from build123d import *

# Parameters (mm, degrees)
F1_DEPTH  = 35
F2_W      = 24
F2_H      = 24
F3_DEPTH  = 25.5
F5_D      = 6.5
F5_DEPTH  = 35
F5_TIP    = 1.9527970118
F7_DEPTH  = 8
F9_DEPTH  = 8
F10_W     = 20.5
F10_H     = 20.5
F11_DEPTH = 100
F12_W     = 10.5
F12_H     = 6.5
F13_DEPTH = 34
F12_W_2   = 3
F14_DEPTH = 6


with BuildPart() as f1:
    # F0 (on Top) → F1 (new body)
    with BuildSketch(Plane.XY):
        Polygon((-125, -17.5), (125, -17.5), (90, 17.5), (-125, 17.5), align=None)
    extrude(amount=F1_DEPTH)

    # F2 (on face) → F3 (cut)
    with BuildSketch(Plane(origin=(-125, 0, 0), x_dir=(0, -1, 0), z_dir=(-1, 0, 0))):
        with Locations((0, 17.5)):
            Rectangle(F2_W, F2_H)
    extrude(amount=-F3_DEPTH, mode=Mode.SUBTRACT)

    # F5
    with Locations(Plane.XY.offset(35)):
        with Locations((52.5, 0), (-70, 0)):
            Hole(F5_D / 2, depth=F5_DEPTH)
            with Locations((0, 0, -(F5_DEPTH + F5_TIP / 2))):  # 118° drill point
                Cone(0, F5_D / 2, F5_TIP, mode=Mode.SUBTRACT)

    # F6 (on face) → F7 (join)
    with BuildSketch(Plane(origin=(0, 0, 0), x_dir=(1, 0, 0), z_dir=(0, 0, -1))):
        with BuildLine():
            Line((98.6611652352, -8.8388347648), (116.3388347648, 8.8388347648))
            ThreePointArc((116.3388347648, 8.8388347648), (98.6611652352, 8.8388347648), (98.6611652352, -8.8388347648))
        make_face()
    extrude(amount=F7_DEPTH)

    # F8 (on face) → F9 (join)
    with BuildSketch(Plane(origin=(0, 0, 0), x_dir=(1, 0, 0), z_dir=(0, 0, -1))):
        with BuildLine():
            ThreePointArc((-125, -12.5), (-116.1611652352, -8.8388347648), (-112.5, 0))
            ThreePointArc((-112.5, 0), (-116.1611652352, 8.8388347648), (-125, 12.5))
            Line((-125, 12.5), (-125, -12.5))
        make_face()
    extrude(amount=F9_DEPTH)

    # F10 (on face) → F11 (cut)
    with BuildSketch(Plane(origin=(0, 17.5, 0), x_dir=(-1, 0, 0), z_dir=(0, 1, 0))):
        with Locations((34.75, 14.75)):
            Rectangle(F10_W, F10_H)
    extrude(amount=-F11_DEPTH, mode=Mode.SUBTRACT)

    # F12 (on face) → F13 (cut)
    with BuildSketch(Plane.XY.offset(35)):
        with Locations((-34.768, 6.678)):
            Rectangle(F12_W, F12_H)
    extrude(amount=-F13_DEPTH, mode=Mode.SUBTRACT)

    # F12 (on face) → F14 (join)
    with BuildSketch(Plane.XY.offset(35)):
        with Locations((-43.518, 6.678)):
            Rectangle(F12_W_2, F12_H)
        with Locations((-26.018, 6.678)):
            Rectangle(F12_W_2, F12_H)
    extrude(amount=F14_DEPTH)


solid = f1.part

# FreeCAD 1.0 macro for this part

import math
import FreeCAD as App
import Part
import Sketcher
from FreeCAD import Vector
Q = App.Units.Quantity


def add_polygon(sketch, points):
    """Adds a closed chain of lines whose ends are joined by coincident constraints."""
    first, n = sketch.GeometryCount, len(points)
    for a, b in zip(points, points[1:] + points[:1]):
        sketch.addGeometry(Part.LineSegment(App.Vector(*a, 0), App.Vector(*b, 0)), False)
    for i in range(n):
        sketch.addConstraint(Sketcher.Constraint("Coincident", first + i, 2, first + (i + 1) % n, 1))

doc = App.newDocument("Part")
params = doc.addObject("Spreadsheet::Sheet", "Params")
for row, (alias, value) in enumerate([
    ("sketch1_width", "250 mm"),
    ("sketch1_width2", "215 mm"),
    ("sketch1_height", "35 mm"),
    ("pad1_length", "35 mm"),
    ("sketch2_width", "24 mm"),
    ("pocket1_length", "25.5 mm"),
    ("sketch3_diameter", "6.5 mm"),
    ("hole_diameter", "6.5 mm"),
    ("hole_depth", "35 mm"),
    ("sketch4_radius", "12.5 mm"),
    ("pad2_length", "8 mm"),
    ("sketch5_radius", "12.5 mm"),
    ("pad3_length", "8 mm"),
    ("sketch6_width", "20.5 mm"),
    ("pocket2_length", "100 mm"),
    ("sketch7_width", "10.5 mm"),
    ("sketch7_height", "6.5 mm"),
    ("pocket3_length", "34 mm"),
    ("sketch8_width", "3 mm"),
    ("sketch8_height", "6.5 mm"),
    ("pad4_length", "6 mm"),
], start=1):
    params.set(f"A{row}", alias)
    params.set(f"B{row}", "=" + value)
    params.setAlias(f"B{row}", alias)

body = doc.addObject("PartDesign::Body", "Body")

# Sketch on XY plane
sketch1 = body.newObject("Sketcher::SketchObject", "Sketch")
sketch1.AttachmentSupport = (doc.getObject("XY_Plane"), [""])
sketch1.MapMode = "FlatFace"
add_polygon(sketch1, [(-125, -18), (125, -18), (90, 18), (-125, 18)])  # lines 0-3
sketch1.addConstraint([
    Sketcher.Constraint("Horizontal", 0),
    Sketcher.Constraint("Horizontal", 2),
    Sketcher.Constraint("Vertical", 3),
    Sketcher.Constraint("Symmetric", 0, 2, 2, 2, -1, 1),
    Sketcher.Constraint("DistanceX", 0, 1, 0, 2, 250.0),
    Sketcher.Constraint("DistanceX", 2, 2, 2, 1, 215.0),
    Sketcher.Constraint("DistanceY", 3, 2, 3, 1, 35.0),
])
sketch1.setExpression("Constraints[8]", "Params.sketch1_width")
sketch1.setExpression("Constraints[9]", "Params.sketch1_width2")
sketch1.setExpression("Constraints[10]", "Params.sketch1_height")
pad1 = body.newObject("PartDesign::Pad", "Pad")
pad1.Profile = sketch1
pad1.setExpression("Length", "Params.pad1_length")

# Sketch on YZ plane
sketch2 = body.newObject("Sketcher::SketchObject", "Sketch001")
sketch2.AttachmentSupport = (doc.getObject("YZ_Plane"), [""])
sketch2.MapMode = "FlatFace"
sketch2.AttachmentOffset = App.Placement(Vector(0, 0, -125), App.Rotation())
add_polygon(sketch2, [(12, 30), (12, 6), (-12, 6), (-12, 30)])  # lines 0-3
sketch2.addConstraint([
    Sketcher.Constraint("Vertical", 0),
    Sketcher.Constraint("Horizontal", 1),
    Sketcher.Constraint("Vertical", 2),
    Sketcher.Constraint("Horizontal", 3),
    Sketcher.Constraint("Equal", 3, 0),
    Sketcher.Constraint("DistanceX", 1, 2, 1, 1, 24.0),
    Sketcher.Constraint("DistanceX", -1, 1, 0, 2, 12.0),
    Sketcher.Constraint("DistanceY", -1, 1, 0, 2, 5.5),
])
sketch2.setExpression("Constraints[9]", "Params.sketch2_width")
pocket1 = body.newObject("PartDesign::Pocket", "Pocket")
pocket1.Profile = sketch2
pocket1.setExpression("Length", "Params.pocket1_length")
pocket1.Reversed = True

# Sketch on XY plane
sketch3 = body.newObject("Sketcher::SketchObject", "Sketch002")
sketch3.AttachmentSupport = (doc.getObject("XY_Plane"), [""])
sketch3.MapMode = "FlatFace"
sketch3.AttachmentOffset = App.Placement(Vector(0, 0, 35), App.Rotation())
sketch3.addGeometry([
    Part.Circle(Vector(52.5, 0, 0), Vector(0, 0, 1), 3.2),
    Part.Circle(Vector(-70, 0, 0), Vector(0, 0, 1), 3.2),
], False)
sketch3.addConstraint([
    Sketcher.Constraint("Equal", 0, 1),
    Sketcher.Constraint("PointOnObject", 0, 3, -1),
    Sketcher.Constraint("PointOnObject", 1, 3, -1),
    Sketcher.Constraint("Diameter", 0, 6.5),
    Sketcher.Constraint("DistanceX", 1, 3, -1, 1, 70.0),
    Sketcher.Constraint("DistanceX", -1, 1, 0, 3, 52.5),
])
sketch3.setExpression("Constraints[3]", "Params.sketch3_diameter")
doc.recompute()
hole = body.newObject("PartDesign::Hole", "Hole")
hole.Profile = sketch3
hole.ThreadType = "None"
hole.setExpression("Diameter", "Params.hole_diameter")
hole.DepthType = "Dimension"
hole.setExpression("Depth", "Params.hole_depth")
hole.DrillPoint = "Angled"
hole.DrillPointAngle = 118

# Sketch on XY plane
sketch4 = body.newObject("Sketcher::SketchObject", "Sketch003")
sketch4.AttachmentSupport = (doc.getObject("XY_Plane"), [""])
sketch4.MapMode = "FlatFace"
sketch4.addGeometry([
    Part.LineSegment(Vector(99, 9, 0), Vector(116, -9, 0)),
    Part.ArcOfCircle(Part.Circle(Vector(108, 0, 0), Vector(0, 0, 1), 12), math.radians(135), math.radians(315)),
], False)
sketch4.addConstraint([
    Sketcher.Constraint("Coincident", 0, 1, 1, 1),
    Sketcher.Constraint("Coincident", 1, 2, 0, 2),
    Sketcher.Constraint("PointOnObject", 1, 3, -1),
    Sketcher.Constraint("Radius", 1, 12.5),
    Sketcher.Constraint("Angle", 0, Q("-45 deg")),
    Sketcher.Constraint("DistanceX", -1, 1, 1, 3, 107.5),
    Sketcher.Constraint("DistanceX", -1, 1, 0, 1, 98.661165),
])
sketch4.setExpression("Constraints[3]", "Params.sketch4_radius")
pad2 = body.newObject("PartDesign::Pad", "Pad001")
pad2.Profile = sketch4
pad2.setExpression("Length", "Params.pad2_length")
pad2.Reversed = True

# Sketch on XY plane
sketch5 = body.newObject("Sketcher::SketchObject", "Sketch004")
sketch5.AttachmentSupport = (doc.getObject("XY_Plane"), [""])
sketch5.MapMode = "FlatFace"
sketch5.addGeometry([
    Part.ArcOfCircle(Part.Circle(Vector(-125, 0, 0), Vector(0, 0, 1), 12), math.radians(0), math.radians(90)),
    Part.ArcOfCircle(Part.Circle(Vector(-125, 0, 0), Vector(0, 0, 1), 12), math.radians(-90), math.radians(0)),
    Part.LineSegment(Vector(-125, -12, 0), Vector(-125, 12, 0)),
], False)
sketch5.addConstraint([
    Sketcher.Constraint("Tangent", 0, 1, 1, 2),
    Sketcher.Constraint("Coincident", 1, 1, 2, 1),
    Sketcher.Constraint("Coincident", 2, 2, 0, 2),
    Sketcher.Constraint("Vertical", 2),
    Sketcher.Constraint("Equal", 0, 1),
    Sketcher.Constraint("PointOnObject", 0, 3, -1),
    Sketcher.Constraint("PointOnObject", 0, 1, -1),
    Sketcher.Constraint("Vertical", 0, 3, 1, 1),
    Sketcher.Constraint("Radius", 0, 12.5),
    Sketcher.Constraint("DistanceX", 0, 3, -1, 1, 125.0),
])
sketch5.setExpression("Constraints[8]", "Params.sketch5_radius")
pad3 = body.newObject("PartDesign::Pad", "Pad002")
pad3.Profile = sketch5
pad3.setExpression("Length", "Params.pad3_length")
pad3.Reversed = True

# Sketch on XZ plane
sketch6 = body.newObject("Sketcher::SketchObject", "Sketch005")
sketch6.AttachmentSupport = (doc.getObject("XZ_Plane"), [""])
sketch6.MapMode = "FlatFace"
sketch6.AttachmentOffset = App.Placement(Vector(0, 0, -17.5), App.Rotation())
add_polygon(sketch6, [(-24, 25), (-24, 4), (-45, 4), (-45, 25)])  # lines 0-3
sketch6.addConstraint([
    Sketcher.Constraint("Vertical", 0),
    Sketcher.Constraint("Horizontal", 1),
    Sketcher.Constraint("Vertical", 2),
    Sketcher.Constraint("Horizontal", 3),
    Sketcher.Constraint("Equal", 3, 0),
    Sketcher.Constraint("DistanceX", 1, 2, 1, 1, 20.5),
    Sketcher.Constraint("DistanceX", 1, 2, -1, 1, 45.0),
    Sketcher.Constraint("DistanceY", -1, 1, 2, 2, 25.0),
])
sketch6.setExpression("Constraints[9]", "Params.sketch6_width")
pocket2 = body.newObject("PartDesign::Pocket", "Pocket001")
pocket2.Profile = sketch6
pocket2.setExpression("Length", "Params.pocket2_length")
pocket2.Reversed = True

# Sketch on XY plane
sketch7 = body.newObject("Sketcher::SketchObject", "Sketch006")
sketch7.AttachmentSupport = (doc.getObject("XY_Plane"), [""])
sketch7.MapMode = "FlatFace"
sketch7.AttachmentOffset = App.Placement(Vector(0, 0, 35), App.Rotation())
add_polygon(sketch7, [(-40, 10), (-40, 3), (-30, 3), (-30, 10)])  # lines 0-3
sketch7.addConstraint([
    Sketcher.Constraint("Vertical", 0),
    Sketcher.Constraint("Horizontal", 1),
    Sketcher.Constraint("Vertical", 2),
    Sketcher.Constraint("Horizontal", 3),
    Sketcher.Constraint("DistanceX", 1, 1, 1, 2, 10.5),
    Sketcher.Constraint("DistanceY", 0, 2, 0, 1, 6.5),
    Sketcher.Constraint("DistanceX", 0, 2, -1, 1, 40.018),
    Sketcher.Constraint("DistanceY", -1, 1, 0, 2, 3.428),
])
sketch7.setExpression("Constraints[8]", "Params.sketch7_width")
sketch7.setExpression("Constraints[9]", "Params.sketch7_height")
pocket3 = body.newObject("PartDesign::Pocket", "Pocket002")
pocket3.Profile = sketch7
pocket3.setExpression("Length", "Params.pocket3_length")

# Sketch on XY plane
sketch8 = body.newObject("Sketcher::SketchObject", "Sketch007")
sketch8.AttachmentSupport = (doc.getObject("XY_Plane"), [""])
sketch8.MapMode = "FlatFace"
sketch8.AttachmentOffset = App.Placement(Vector(0, 0, 35), App.Rotation())
add_polygon(sketch8, [(-45, 9.9), (-45, 3.4), (-42, 3.4), (-42, 9.9)])  # lines 0-3
add_polygon(sketch8, [(-27.5, 9.9), (-27.5, 3.4), (-24.5, 3.4), (-24.5, 9.9)])  # lines 4-7
sketch8.addConstraint([
    Sketcher.Constraint("Vertical", 0),
    Sketcher.Constraint("Horizontal", 1),
    Sketcher.Constraint("Vertical", 2),
    Sketcher.Constraint("Horizontal", 3),
    Sketcher.Constraint("Vertical", 4),
    Sketcher.Constraint("Horizontal", 5),
    Sketcher.Constraint("Vertical", 6),
    Sketcher.Constraint("Horizontal", 7),
    Sketcher.Constraint("Horizontal", 1, 2, 4, 2),
    Sketcher.Constraint("Horizontal", 3, 2, 6, 2),
    Sketcher.Constraint("Equal", 3, 5),
    Sketcher.Constraint("DistanceX", 1, 1, 1, 2, 3.0),
    Sketcher.Constraint("DistanceY", 0, 2, 0, 1, 6.5),
    Sketcher.Constraint("DistanceX", 1, 2, 4, 2, 14.5),
    Sketcher.Constraint("DistanceX", 0, 2, -1, 1, 45.018),
    Sketcher.Constraint("DistanceY", -1, 1, 0, 2, 3.428),
])
sketch8.setExpression("Constraints[19]", "Params.sketch8_width")
sketch8.setExpression("Constraints[20]", "Params.sketch8_height")
pad4 = body.newObject("PartDesign::Pad", "Pad003")
pad4.Profile = sketch8
pad4.setExpression("Length", "Params.pad4_length")

doc.recompute()
